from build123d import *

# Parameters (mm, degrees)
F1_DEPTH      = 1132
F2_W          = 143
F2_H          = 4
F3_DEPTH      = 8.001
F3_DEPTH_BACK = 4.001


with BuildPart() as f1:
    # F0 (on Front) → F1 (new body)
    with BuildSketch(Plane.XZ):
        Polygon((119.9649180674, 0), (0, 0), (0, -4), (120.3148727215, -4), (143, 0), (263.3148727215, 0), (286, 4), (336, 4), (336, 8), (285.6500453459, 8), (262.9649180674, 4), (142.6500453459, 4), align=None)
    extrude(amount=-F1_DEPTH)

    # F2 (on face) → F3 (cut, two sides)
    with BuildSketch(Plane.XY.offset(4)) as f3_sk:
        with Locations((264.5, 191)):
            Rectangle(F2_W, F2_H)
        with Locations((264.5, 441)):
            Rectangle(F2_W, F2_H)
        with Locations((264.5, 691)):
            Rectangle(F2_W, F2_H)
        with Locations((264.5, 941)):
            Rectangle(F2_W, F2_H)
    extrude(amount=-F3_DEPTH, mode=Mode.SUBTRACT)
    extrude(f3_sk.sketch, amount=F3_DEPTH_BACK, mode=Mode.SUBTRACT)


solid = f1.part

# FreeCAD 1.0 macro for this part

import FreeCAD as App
import Part
import Sketcher
from FreeCAD import Vector
Q = App.Units.Quantity

doc = App.newDocument("Part")
body = doc.addObject("PartDesign::Body", "Body")

sketch1 = body.newObject("Sketcher::SketchObject", "Sketch")
sketch1.AttachmentSupport = (doc.getObject("XZ_Plane"), [""])
sketch1.MapMode = "FlatFace"
sketch1.addGeometry(Part.LineSegment(Vector(120, 0, 0), Vector(0, 0, 0)), False)
sketch1.addGeometry(Part.LineSegment(Vector(0, 0, 0), Vector(0, -4, 0)), False)
sketch1.addGeometry(Part.LineSegment(Vector(0, -4, 0), Vector(120.3, -4, 0)), False)
sketch1.addGeometry(Part.LineSegment(Vector(120.3, -4, 0), Vector(143, 0, 0)), False)
sketch1.addGeometry(Part.LineSegment(Vector(143, 0, 0), Vector(263.3, 0, 0)), False)
sketch1.addGeometry(Part.LineSegment(Vector(263.3, 0, 0), Vector(286, 4, 0)), False)
sketch1.addGeometry(Part.LineSegment(Vector(286, 4, 0), Vector(336, 4, 0)), False)
sketch1.addGeometry(Part.LineSegment(Vector(336, 4, 0), Vector(336, 8, 0)), False)
sketch1.addGeometry(Part.LineSegment(Vector(336, 8, 0), Vector(285.7, 8, 0)), False)
sketch1.addGeometry(Part.LineSegment(Vector(285.7, 8, 0), Vector(263, 4, 0)), False)
sketch1.addGeometry(Part.LineSegment(Vector(263, 4, 0), Vector(142.7, 4, 0)), False)
sketch1.addGeometry(Part.LineSegment(Vector(142.7, 4, 0), Vector(120, 0, 0)), False)
sketch1.addConstraint(Sketcher.Constraint("Coincident", 0, 2, 1, 1))
sketch1.addConstraint(Sketcher.Constraint("Coincident", 1, 2, 2, 1))
sketch1.addConstraint(Sketcher.Constraint("Coincident", 2, 2, 3, 1))
sketch1.addConstraint(Sketcher.Constraint("Coincident", 3, 2, 4, 1))
sketch1.addConstraint(Sketcher.Constraint("Coincident", 4, 2, 5, 1))
sketch1.addConstraint(Sketcher.Constraint("Coincident", 5, 2, 6, 1))
sketch1.addConstraint(Sketcher.Constraint("Coincident", 6, 2, 7, 1))
sketch1.addConstraint(Sketcher.Constraint("Coincident", 7, 2, 8, 1))
sketch1.addConstraint(Sketcher.Constraint("Coincident", 8, 2, 9, 1))
sketch1.addConstraint(Sketcher.Constraint("Coincident", 9, 2, 10, 1))
sketch1.addConstraint(Sketcher.Constraint("Coincident", 10, 2, 11, 1))
sketch1.addConstraint(Sketcher.Constraint("Coincident", 11, 2, 0, 1))
sketch1.addConstraint(Sketcher.Constraint("Horizontal", 0))
sketch1.addConstraint(Sketcher.Constraint("Vertical", 1))
sketch1.addConstraint(Sketcher.Constraint("Horizontal", 2))
sketch1.addConstraint(Sketcher.Constraint("Horizontal", 4))
sketch1.addConstraint(Sketcher.Constraint("Horizontal", 6))
sketch1.addConstraint(Sketcher.Constraint("Vertical", 7))
sketch1.addConstraint(Sketcher.Constraint("Horizontal", 8))
sketch1.addConstraint(Sketcher.Constraint("Horizontal", 10))
sketch1.addConstraint(Sketcher.Constraint("Coincident", 0, 2, -1, 1))
sketch1.addConstraint(Sketcher.Constraint("PointOnObject", 3, 2, -1))
sketch1.addConstraint(Sketcher.Constraint("Parallel", 3, 5))
sketch1.addConstraint(Sketcher.Constraint("Parallel", 5, 9))
sketch1.addConstraint(Sketcher.Constraint("Parallel", 9, 11))
sketch1.addConstraint(Sketcher.Constraint("Horizontal", 6, 2, 9, 2))
sketch1.addConstraint(Sketcher.Constraint("Equal", 2, 4))
sketch1.addConstraint(Sketcher.Constraint("Equal", 4, 10))
sketch1.addConstraint(Sketcher.Constraint("Equal", 1, 7))
sketch1.addConstraint(Sketcher.Constraint("Equal", 3, 5))
sketch1.addConstraint(Sketcher.Constraint("DistanceX", 6, 1, 6, 2, Q("50 mm")))
sketch1.addConstraint(Sketcher.Constraint("DistanceY", 1, 2, 1, 1, Q("4 mm")))
sketch1.addConstraint(Sketcher.Constraint("Angle", 3, Q("10 deg")))
sketch1.addConstraint(Sketcher.Constraint("DistanceX", -1, 1, 3, 2, Q("143 mm")))
sketch1.addConstraint(Sketcher.Constraint("DistanceX", 0, 2, 0, 1, Q("119.964918 mm")))
pad1 = body.newObject("PartDesign::Pad", "Pad")
pad1.Profile = sketch1
pad1.Length = 1132
pad1.Reversed = True

sketch2 = body.newObject("Sketcher::SketchObject", "Sketch001")
sketch2.AttachmentSupport = (doc.getObject("XY_Plane"), [""])
sketch2.MapMode = "FlatFace"
sketch2.AttachmentOffset = App.Placement(Vector(0, 0, 4), App.Rotation())
sketch2.addGeometry(Part.LineSegment(Vector(193, 193, 0), Vector(193, 189, 0)), False)
sketch2.addGeometry(Part.LineSegment(Vector(193, 189, 0), Vector(336, 189, 0)), False)
sketch2.addGeometry(Part.LineSegment(Vector(336, 189, 0), Vector(336, 193, 0)), False)
sketch2.addGeometry(Part.LineSegment(Vector(336, 193, 0), Vector(193, 193, 0)), False)
sketch2.addGeometry(Part.LineSegment(Vector(193, 443, 0), Vector(193, 439, 0)), False)
sketch2.addGeometry(Part.LineSegment(Vector(193, 439, 0), Vector(336, 439, 0)), False)
sketch2.addGeometry(Part.LineSegment(Vector(336, 439, 0), Vector(336, 443, 0)), False)
sketch2.addGeometry(Part.LineSegment(Vector(336, 443, 0), Vector(193, 443, 0)), False)
sketch2.addGeometry(Part.LineSegment(Vector(193, 693, 0), Vector(193, 689, 0)), False)
sketch2.addGeometry(Part.LineSegment(Vector(193, 689, 0), Vector(336, 689, 0)), False)
sketch2.addGeometry(Part.LineSegment(Vector(336, 689, 0), Vector(336, 693, 0)), False)
sketch2.addGeometry(Part.LineSegment(Vector(336, 693, 0), Vector(193, 693, 0)), False)
sketch2.addGeometry(Part.LineSegment(Vector(193, 943, 0), Vector(193, 939, 0)), False)
sketch2.addGeometry(Part.LineSegment(Vector(193, 939, 0), Vector(336, 939, 0)), False)
sketch2.addGeometry(Part.LineSegment(Vector(336, 939, 0), Vector(336, 943, 0)), False)
sketch2.addGeometry(Part.LineSegment(Vector(336, 943, 0), Vector(193, 943, 0)), False)
sketch2.addConstraint(Sketcher.Constraint("Coincident", 0, 2, 1, 1))
sketch2.addConstraint(Sketcher.Constraint("Coincident", 1, 2, 2, 1))
sketch2.addConstraint(Sketcher.Constraint("Coincident", 2, 2, 3, 1))
sketch2.addConstraint(Sketcher.Constraint("Coincident", 3, 2, 0, 1))
sketch2.addConstraint(Sketcher.Constraint("Coincident", 4, 2, 5, 1))
sketch2.addConstraint(Sketcher.Constraint("Coincident", 5, 2, 6, 1))
sketch2.addConstraint(Sketcher.Constraint("Coincident", 6, 2, 7, 1))
sketch2.addConstraint(Sketcher.Constraint("Coincident", 7, 2, 4, 1))
sketch2.addConstraint(Sketcher.Constraint("Coincident", 8, 2, 9, 1))
sketch2.addConstraint(Sketcher.Constraint("Coincident", 9, 2, 10, 1))
sketch2.addConstraint(Sketcher.Constraint("Coincident", 10, 2, 11, 1))
sketch2.addConstraint(Sketcher.Constraint("Coincident", 11, 2, 8, 1))
sketch2.addConstraint(Sketcher.Constraint("Coincident", 12, 2, 13, 1))
sketch2.addConstraint(Sketcher.Constraint("Coincident", 13, 2, 14, 1))
sketch2.addConstraint(Sketcher.Constraint("Coincident", 14, 2, 15, 1))
sketch2.addConstraint(Sketcher.Constraint("Coincident", 15, 2, 12, 1))
sketch2.addConstraint(Sketcher.Constraint("Vertical", 0))
sketch2.addConstraint(Sketcher.Constraint("Horizontal", 1))
sketch2.addConstraint(Sketcher.Constraint("Vertical", 2))
sketch2.addConstraint(Sketcher.Constraint("Horizontal", 3))
sketch2.addConstraint(Sketcher.Constraint("Vertical", 4))
sketch2.addConstraint(Sketcher.Constraint("Horizontal", 5))
sketch2.addConstraint(Sketcher.Constraint("Vertical", 6))
sketch2.addConstraint(Sketcher.Constraint("Horizontal", 7))
sketch2.addConstraint(Sketcher.Constraint("Vertical", 8))
sketch2.addConstraint(Sketcher.Constraint("Horizontal", 9))
sketch2.addConstraint(Sketcher.Constraint("Vertical", 10))
sketch2.addConstraint(Sketcher.Constraint("Horizontal", 11))
sketch2.addConstraint(Sketcher.Constraint("Vertical", 12))
sketch2.addConstraint(Sketcher.Constraint("Horizontal", 13))
sketch2.addConstraint(Sketcher.Constraint("Vertical", 14))
sketch2.addConstraint(Sketcher.Constraint("Horizontal", 15))
sketch2.addConstraint(Sketcher.Constraint("Vertical", 3, 2, 4, 2))
sketch2.addConstraint(Sketcher.Constraint("Vertical", 2, 2, 5, 2))
sketch2.addConstraint(Sketcher.Constraint("Vertical", 7, 2, 8, 2))
sketch2.addConstraint(Sketcher.Constraint("Vertical", 6, 2, 9, 2))
sketch2.addConstraint(Sketcher.Constraint("Vertical", 11, 2, 12, 2))
sketch2.addConstraint(Sketcher.Constraint("Vertical", 10, 2, 13, 2))
sketch2.addConstraint(Sketcher.Constraint("Equal", 2, 4))
sketch2.addConstraint(Sketcher.Constraint("Equal", 6, 8))
sketch2.addConstraint(Sketcher.Constraint("Equal", 10, 12))
sketch2.addConstraint(Sketcher.Constraint("DistanceX", 1, 1, 1, 2, Q("143 mm")))
sketch2.addConstraint(Sketcher.Constraint("DistanceY", 0, 2, 0, 1, Q("4 mm")))
sketch2.addConstraint(Sketcher.Constraint("DistanceX", -1, 1, 0, 2, Q("193 mm")))
sketch2.addConstraint(Sketcher.Constraint("DistanceY", -1, 1, 0, 2, Q("189 mm")))
sketch2.addConstraint(Sketcher.Constraint("DistanceY", -1, 1, 4, 2, Q("439 mm")))
sketch2.addConstraint(Sketcher.Constraint("DistanceY", -1, 1, 8, 2, Q("689 mm")))
sketch2.addConstraint(Sketcher.Constraint("DistanceY", -1, 1, 12, 2, Q("939 mm")))
pocket1 = body.newObject("PartDesign::Pocket", "Pocket")
pocket1.Profile = sketch2
pocket1.Type = "ThroughAll"
pocket1.Midplane = True

doc.recompute()
